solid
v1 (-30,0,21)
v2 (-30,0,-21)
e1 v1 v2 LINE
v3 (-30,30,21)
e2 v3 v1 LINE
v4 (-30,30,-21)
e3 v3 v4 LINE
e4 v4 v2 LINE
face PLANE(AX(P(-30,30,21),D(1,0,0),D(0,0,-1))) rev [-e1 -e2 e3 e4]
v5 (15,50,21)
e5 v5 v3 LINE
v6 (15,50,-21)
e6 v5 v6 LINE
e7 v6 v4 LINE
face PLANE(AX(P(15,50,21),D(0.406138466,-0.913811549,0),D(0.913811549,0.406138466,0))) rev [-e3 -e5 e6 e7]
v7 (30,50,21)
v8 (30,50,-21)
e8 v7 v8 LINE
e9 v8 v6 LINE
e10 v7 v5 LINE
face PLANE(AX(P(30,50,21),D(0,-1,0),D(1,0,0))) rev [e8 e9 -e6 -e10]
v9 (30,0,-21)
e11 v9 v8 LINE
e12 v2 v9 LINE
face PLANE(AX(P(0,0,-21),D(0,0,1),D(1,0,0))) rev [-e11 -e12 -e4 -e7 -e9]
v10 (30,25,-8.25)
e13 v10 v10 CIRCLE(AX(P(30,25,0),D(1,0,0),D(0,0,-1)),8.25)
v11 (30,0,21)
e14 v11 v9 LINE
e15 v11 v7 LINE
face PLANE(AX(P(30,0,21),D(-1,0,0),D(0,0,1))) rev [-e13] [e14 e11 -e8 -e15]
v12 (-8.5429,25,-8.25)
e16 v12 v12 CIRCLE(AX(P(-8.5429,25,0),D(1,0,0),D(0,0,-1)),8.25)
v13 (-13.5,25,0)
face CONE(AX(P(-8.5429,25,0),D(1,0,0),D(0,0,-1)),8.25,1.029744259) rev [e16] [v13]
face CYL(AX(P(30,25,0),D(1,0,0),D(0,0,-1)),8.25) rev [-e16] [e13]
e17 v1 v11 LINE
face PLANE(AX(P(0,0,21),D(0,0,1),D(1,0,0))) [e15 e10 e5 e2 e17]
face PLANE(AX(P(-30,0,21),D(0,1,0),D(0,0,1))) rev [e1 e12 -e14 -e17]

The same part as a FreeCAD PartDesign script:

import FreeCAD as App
import Part
import Sketcher

V = App.Vector


def add_polygon(sketch, points):
    """Adds a closed chain of lines whose ends are joined by coincident constraints."""
    first, n = sketch.GeometryCount, len(points)
    for a, b in zip(points, points[1:] + points[:1]):
        sketch.addGeometry(Part.LineSegment(App.Vector(*a, 0), App.Vector(*b, 0)), False)
    for i in range(n):
        sketch.addConstraint(Sketcher.Constraint("Coincident", first + i, 2, first + (i + 1) % n, 1))

doc = App.newDocument("Part")
params = doc.addObject("Spreadsheet::Sheet", "Params")
for row, (alias, value) in enumerate([
    ("sketch1_width", "15 mm"),
    ("sketch1_width2", "60 mm"),
    ("sketch1_height", "50 mm"),
    ("sketch1_height2", "30 mm"),
    ("pad1_length", "42 mm"),
    ("sketch2_diameter", "16.5 mm"),
    ("hole_diameter", "16.5 mm"),
    ("hole_depth", "38.5429 mm"),
], start=1):
    params.set(f"A{row}", alias)
    params.set(f"B{row}", "=" + value)
    params.setAlias(f"B{row}", alias)

body = doc.addObject("PartDesign::Body", "Body")

# Sketch on XY plane
sketch1 = body.newObject("Sketcher::SketchObject", "Sketch")
sketch1.AttachmentSupport = (doc.getObject("XY_Plane"), [""])
sketch1.MapMode = "FlatFace"
add_polygon(sketch1, [(30, 0), (30, 50), (15, 50), (-30, 30), (-30, 0)])  # lines 0-4
sketch1.addConstraint(Sketcher.Constraint("Vertical", 0))
sketch1.addConstraint(Sketcher.Constraint("Horizontal", 1))
sketch1.addConstraint(Sketcher.Constraint("Vertical", 3))
sketch1.addConstraint(Sketcher.Constraint("Horizontal", 4))
sketch1.addConstraint(Sketcher.Constraint("Symmetric", 3, 2, 4, 2, -1, 1))
sketch1.addConstraint(Sketcher.Constraint("DistanceX", 1, 2, 1, 1, 15.0))
sketch1.addConstraint(Sketcher.Constraint("DistanceX", 4, 1, 4, 2, 60.0))
sketch1.addConstraint(Sketcher.Constraint("DistanceY", 0, 1, 0, 2, 50.0))
sketch1.addConstraint(Sketcher.Constraint("DistanceY", 3, 2, 3, 1, 30.0))
sketch1.setExpression("Constraints[10]", "Params.sketch1_width")
sketch1.setExpression("Constraints[11]", "Params.sketch1_width2")
sketch1.setExpression("Constraints[12]", "Params.sketch1_height")
sketch1.setExpression("Constraints[13]", "Params.sketch1_height2")
pad1 = body.newObject("PartDesign::Pad", "Pad")
pad1.Profile = sketch1
pad1.setExpression("Length", "Params.pad1_length")
pad1.Midplane = True

# Sketch on YZ plane
sketch2 = body.newObject("Sketcher::SketchObject", "Sketch001")
sketch2.AttachmentSupport = (doc.getObject("YZ_Plane"), [""])
sketch2.MapMode = "FlatFace"
sketch2.AttachmentOffset = App.Placement(V(0, 0, 30), App.Rotation())
sketch2.addGeometry(Part.Circle(V(25, 0, 0), V(0, 0, 1), 8.25), False)
sketch2.addConstraint(Sketcher.Constraint("PointOnObject", 0, 3, -1))
sketch2.addConstraint(Sketcher.Constraint("Diameter", 0, 16.5))
sketch2.addConstraint(Sketcher.Constraint("DistanceX", -1, 1, 0, 3, 25.0))
sketch2.setExpression("Constraints[1]", "Params.sketch2_diameter")
doc.recompute()
hole = body.newObject("PartDesign::Hole", "Hole")
hole.Profile = sketch2
hole.ThreadType = "None"
hole.setExpression("Diameter", "Params.hole_diameter")
hole.DepthType = "Dimension"
hole.setExpression("Depth", "Params.hole_depth")
hole.DrillPoint = "Angled"
hole.DrillPointAngle = 118

doc.recompute()
